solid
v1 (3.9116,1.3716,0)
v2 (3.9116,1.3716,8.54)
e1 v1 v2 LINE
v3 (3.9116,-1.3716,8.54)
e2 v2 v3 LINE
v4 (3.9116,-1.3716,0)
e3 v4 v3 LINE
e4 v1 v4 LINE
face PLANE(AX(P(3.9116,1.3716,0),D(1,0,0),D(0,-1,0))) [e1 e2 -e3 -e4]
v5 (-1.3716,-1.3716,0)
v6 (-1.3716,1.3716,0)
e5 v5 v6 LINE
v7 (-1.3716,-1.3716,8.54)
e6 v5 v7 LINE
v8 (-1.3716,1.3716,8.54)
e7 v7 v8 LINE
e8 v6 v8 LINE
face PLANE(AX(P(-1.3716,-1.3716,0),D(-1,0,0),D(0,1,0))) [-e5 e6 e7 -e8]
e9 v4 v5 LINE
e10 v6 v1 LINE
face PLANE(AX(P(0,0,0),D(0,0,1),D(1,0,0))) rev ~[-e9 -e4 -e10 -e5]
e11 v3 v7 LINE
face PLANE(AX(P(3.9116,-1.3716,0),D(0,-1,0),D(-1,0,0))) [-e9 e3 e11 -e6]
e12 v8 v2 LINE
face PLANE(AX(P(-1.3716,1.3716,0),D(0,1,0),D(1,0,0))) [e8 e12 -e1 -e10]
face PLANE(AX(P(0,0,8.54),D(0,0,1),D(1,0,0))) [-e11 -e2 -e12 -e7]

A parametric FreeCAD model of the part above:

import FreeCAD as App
import Part
import Sketcher
Q = App.Units.Quantity

doc = App.newDocument("Part")
params = doc.addObject("Spreadsheet::Sheet", "Params")
for row, (alias, value) in enumerate([
    ("sketch1_width", "0.208 in"),
    ("sketch1_height", "0.108 in"),
    ("pad1_length", "8.54 mm"),
], start=1):
    params.set(f"A{row}", alias)
    params.set(f"B{row}", "=" + value)
    params.setAlias(f"B{row}", alias)

body = doc.addObject("PartDesign::Body", "Body")

# Sketch on XY plane
sketch1 = body.newObject("Sketcher::SketchObject", "Sketch")
sketch1.AttachmentSupport = (doc.getObject("XY_Plane"), [""])
sketch1.MapMode = "FlatFace"
sketch1.addGeometry([
    Part.LineSegment(App.Vector(-1.3716, -1.3716, 0), App.Vector(3.9116, -1.3716, 0)),
    Part.LineSegment(App.Vector(3.9116, -1.3716, 0), App.Vector(3.9116, 1.3716, 0)),
    Part.LineSegment(App.Vector(3.9116, 1.3716, 0), App.Vector(-1.3716, 1.3716, 0)),
    Part.LineSegment(App.Vector(-1.3716, 1.3716, 0), App.Vector(-1.3716, -1.3716, 0)),
], False)
sketch1.addConstraint([
    Sketcher.Constraint("Coincident", 0, 2, 1, 1),
    Sketcher.Constraint("Coincident", 1, 2, 2, 1),
    Sketcher.Constraint("Coincident", 2, 2, 3, 1),
    Sketcher.Constraint("Coincident", 3, 2, 0, 1),
    Sketcher.Constraint("Horizontal", 0),
    Sketcher.Constraint("Vertical", 1),
    Sketcher.Constraint("Horizontal", 2),
    Sketcher.Constraint("Vertical", 3),
    Sketcher.Constraint("DistanceX", 0, 1, 0, 2, Q("0.208 in")),
    Sketcher.Constraint("DistanceY", 1, 1, 1, 2, Q("0.108 in")),
    Sketcher.Constraint("DistanceX", -1, 1, 0, 2, Q("0.154 in")),
    Sketcher.Constraint("DistanceY", 0, 2, -1, 1, Q("0.054 in")),
])
sketch1.setExpression("Constraints[8]", "Params.sketch1_width")
sketch1.setExpression("Constraints[9]", "Params.sketch1_height")
pad1 = body.newObject("PartDesign::Pad", "Pad")
pad1.Profile = sketch1
pad1.setExpression("Length", "Params.pad1_length")

doc.recompute()
